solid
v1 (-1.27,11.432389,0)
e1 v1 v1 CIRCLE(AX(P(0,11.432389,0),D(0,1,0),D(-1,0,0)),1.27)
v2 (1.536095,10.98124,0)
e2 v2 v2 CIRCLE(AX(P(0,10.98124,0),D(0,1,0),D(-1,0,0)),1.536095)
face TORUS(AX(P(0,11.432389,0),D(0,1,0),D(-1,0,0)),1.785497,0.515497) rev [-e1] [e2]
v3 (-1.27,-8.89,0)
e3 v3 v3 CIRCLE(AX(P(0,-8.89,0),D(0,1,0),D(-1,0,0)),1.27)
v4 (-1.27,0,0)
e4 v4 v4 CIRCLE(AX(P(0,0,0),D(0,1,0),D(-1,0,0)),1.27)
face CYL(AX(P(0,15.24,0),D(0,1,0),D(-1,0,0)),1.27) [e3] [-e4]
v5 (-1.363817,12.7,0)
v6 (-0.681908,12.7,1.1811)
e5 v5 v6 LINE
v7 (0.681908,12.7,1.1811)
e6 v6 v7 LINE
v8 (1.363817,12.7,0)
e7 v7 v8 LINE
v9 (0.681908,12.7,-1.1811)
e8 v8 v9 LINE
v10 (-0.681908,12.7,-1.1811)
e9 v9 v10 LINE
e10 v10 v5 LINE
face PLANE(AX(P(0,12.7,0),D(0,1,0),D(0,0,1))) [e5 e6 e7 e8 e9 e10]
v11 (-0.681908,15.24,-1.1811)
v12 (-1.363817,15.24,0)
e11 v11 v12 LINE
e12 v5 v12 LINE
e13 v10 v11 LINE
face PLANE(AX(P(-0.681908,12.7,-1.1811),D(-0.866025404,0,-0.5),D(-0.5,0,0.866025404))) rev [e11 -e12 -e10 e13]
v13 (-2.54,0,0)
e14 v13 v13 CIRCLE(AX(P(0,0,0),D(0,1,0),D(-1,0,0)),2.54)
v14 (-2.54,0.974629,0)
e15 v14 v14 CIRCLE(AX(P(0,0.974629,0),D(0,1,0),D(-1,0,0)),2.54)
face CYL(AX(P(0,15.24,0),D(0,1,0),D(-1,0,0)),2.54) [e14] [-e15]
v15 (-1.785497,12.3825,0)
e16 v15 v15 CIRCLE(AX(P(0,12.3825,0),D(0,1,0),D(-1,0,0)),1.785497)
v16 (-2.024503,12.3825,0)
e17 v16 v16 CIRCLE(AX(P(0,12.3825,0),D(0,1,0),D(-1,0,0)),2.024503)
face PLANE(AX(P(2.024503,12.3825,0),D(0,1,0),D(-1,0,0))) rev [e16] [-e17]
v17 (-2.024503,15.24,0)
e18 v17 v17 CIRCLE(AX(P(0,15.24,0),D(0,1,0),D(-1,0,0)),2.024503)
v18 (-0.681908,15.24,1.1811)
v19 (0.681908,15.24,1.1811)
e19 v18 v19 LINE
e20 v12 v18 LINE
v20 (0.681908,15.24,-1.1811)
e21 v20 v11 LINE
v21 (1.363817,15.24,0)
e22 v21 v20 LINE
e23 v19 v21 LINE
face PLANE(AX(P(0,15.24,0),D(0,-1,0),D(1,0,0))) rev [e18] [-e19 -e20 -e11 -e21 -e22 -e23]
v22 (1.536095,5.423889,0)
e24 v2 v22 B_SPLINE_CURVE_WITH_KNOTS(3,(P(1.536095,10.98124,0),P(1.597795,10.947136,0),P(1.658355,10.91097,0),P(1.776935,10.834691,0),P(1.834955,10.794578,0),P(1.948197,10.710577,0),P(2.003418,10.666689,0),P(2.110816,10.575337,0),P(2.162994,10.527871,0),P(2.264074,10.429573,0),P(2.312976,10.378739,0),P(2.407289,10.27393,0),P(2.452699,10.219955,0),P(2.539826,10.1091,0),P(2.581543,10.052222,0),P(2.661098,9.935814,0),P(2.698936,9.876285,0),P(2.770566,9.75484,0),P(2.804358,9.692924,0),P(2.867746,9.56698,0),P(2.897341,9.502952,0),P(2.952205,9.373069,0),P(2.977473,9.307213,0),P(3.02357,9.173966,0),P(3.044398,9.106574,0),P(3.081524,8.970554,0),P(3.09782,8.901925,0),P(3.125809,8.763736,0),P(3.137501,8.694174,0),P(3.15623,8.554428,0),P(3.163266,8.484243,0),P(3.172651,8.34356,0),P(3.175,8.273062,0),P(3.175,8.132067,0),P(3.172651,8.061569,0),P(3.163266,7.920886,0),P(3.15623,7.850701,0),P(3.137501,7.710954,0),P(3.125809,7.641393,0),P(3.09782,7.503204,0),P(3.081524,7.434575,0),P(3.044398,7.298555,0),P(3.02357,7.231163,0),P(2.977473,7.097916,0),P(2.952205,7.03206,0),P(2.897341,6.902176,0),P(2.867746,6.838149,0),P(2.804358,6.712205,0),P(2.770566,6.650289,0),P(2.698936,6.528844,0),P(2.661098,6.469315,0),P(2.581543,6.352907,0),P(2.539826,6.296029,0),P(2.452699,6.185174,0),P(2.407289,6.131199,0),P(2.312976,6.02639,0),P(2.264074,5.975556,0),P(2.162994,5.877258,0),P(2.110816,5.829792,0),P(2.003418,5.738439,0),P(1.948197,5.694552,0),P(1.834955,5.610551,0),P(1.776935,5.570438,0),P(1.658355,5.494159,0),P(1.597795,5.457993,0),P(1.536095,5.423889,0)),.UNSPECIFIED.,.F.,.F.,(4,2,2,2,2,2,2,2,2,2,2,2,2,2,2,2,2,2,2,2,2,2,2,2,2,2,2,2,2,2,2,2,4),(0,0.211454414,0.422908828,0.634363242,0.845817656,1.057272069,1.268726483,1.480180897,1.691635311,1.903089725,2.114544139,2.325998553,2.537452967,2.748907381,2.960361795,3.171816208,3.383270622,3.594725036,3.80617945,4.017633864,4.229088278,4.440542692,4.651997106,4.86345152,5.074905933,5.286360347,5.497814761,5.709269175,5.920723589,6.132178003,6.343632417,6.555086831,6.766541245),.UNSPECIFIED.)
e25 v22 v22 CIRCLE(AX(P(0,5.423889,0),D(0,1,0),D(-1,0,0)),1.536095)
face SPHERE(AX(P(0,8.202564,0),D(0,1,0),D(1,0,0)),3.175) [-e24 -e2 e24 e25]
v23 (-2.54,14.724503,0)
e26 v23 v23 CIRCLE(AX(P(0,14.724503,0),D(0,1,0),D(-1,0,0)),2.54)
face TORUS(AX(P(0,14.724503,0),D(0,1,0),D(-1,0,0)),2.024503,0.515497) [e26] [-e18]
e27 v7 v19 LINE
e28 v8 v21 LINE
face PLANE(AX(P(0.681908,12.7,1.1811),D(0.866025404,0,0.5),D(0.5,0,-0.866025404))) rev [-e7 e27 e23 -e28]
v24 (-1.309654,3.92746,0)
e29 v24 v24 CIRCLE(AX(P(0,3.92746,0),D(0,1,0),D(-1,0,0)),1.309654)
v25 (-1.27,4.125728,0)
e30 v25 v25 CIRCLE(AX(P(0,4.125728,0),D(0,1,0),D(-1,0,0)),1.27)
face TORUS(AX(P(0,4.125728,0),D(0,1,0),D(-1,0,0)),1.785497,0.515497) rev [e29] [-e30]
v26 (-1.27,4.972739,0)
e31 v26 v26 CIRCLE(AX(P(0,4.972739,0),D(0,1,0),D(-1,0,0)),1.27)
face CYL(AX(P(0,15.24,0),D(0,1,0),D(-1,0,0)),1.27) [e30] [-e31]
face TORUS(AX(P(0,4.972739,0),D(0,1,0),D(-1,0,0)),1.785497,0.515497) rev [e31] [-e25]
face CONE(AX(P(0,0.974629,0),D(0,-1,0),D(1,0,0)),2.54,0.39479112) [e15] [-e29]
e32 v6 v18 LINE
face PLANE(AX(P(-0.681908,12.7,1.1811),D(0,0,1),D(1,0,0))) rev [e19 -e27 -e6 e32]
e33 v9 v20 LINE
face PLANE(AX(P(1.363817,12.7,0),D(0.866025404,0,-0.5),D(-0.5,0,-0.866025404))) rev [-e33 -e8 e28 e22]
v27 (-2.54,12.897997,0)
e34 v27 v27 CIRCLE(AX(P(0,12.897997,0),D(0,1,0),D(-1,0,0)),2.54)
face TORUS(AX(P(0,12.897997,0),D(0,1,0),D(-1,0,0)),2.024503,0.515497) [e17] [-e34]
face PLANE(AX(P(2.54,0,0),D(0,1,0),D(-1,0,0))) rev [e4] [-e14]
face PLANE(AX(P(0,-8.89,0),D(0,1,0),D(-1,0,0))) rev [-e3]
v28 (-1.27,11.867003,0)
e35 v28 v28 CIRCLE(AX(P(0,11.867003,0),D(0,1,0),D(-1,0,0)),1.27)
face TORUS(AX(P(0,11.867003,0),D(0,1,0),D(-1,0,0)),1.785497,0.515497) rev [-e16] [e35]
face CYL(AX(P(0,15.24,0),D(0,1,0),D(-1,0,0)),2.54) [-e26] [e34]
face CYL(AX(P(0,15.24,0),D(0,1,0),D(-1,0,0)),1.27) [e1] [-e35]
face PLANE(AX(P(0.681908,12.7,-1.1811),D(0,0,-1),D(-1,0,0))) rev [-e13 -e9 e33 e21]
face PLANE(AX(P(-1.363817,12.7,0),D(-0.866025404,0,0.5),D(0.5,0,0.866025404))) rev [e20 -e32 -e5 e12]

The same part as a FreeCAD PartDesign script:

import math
import FreeCAD as App
import Part
import Sketcher
Q = App.Units.Quantity

doc = App.newDocument("Part")
body = doc.addObject("PartDesign::Body", "Body")

sketch1 = body.newObject("Sketcher::SketchObject", "Sketch")
sketch1.AttachmentSupport = (doc.getObject("XY_Plane"), [""])
sketch1.MapMode = "FlatFace"
sketch1.addGeometry(Part.LineSegment(App.Vector(0, 15.24, 0), App.Vector(0, -8.89, 0)), False)
sketch1.addGeometry(Part.LineSegment(App.Vector(0, -8.89, 0), App.Vector(1.27, -8.89, 0)), False)
sketch1.addGeometry(Part.LineSegment(App.Vector(1.27, -8.89, 0), App.Vector(1.27, 0, 0)), False)
sketch1.addGeometry(Part.LineSegment(App.Vector(1.27, 0, 0), App.Vector(2.54, 0, 0)), False)
sketch1.addGeometry(Part.LineSegment(App.Vector(2.54, 0, 0), App.Vector(2.54, 0.97, 0)), False)
sketch1.addGeometry(Part.LineSegment(App.Vector(2.54, 0.97, 0), App.Vector(1.31, 3.93, 0)), False)
sketch1.addGeometry(Part.ArcOfCircle(Part.Circle(App.Vector(1.79, 4.13, 0), App.Vector(0, 0, 1), 0.52), math.radians(180), math.radians(203)), False)
sketch1.addGeometry(Part.LineSegment(App.Vector(1.27, 4.13, 0), App.Vector(1.27, 4.97, 0)), False)
sketch1.addGeometry(Part.ArcOfCircle(Part.Circle(App.Vector(1.79, 4.97, 0), App.Vector(0, 0, 1), 0.52), math.radians(119), math.radians(180)), False)
sketch1.addGeometry(Part.ArcOfCircle(Part.Circle(App.Vector(0, 8.2, 0), App.Vector(0, 0, 1), 3.17), math.radians(-61), math.radians(61)), False)
sketch1.addGeometry(Part.ArcOfCircle(Part.Circle(App.Vector(1.79, 11.43, 0), App.Vector(0, 0, 1), 0.52), math.radians(-180), math.radians(-119)), False)
sketch1.addGeometry(Part.LineSegment(App.Vector(1.27, 11.43, 0), App.Vector(1.27, 11.87, 0)), False)
sketch1.addGeometry(Part.ArcOfCircle(Part.Circle(App.Vector(1.79, 11.87, 0), App.Vector(0, 0, 1), 0.52), math.radians(90), math.radians(180)), False)
sketch1.addGeometry(Part.LineSegment(App.Vector(1.79, 12.38, 0), App.Vector(2.02, 12.38, 0)), False)
sketch1.addGeometry(Part.ArcOfCircle(Part.Circle(App.Vector(2.02, 12.9, 0), App.Vector(0, 0, 1), 0.52), math.radians(-90), math.radians(0)), False)
sketch1.addGeometry(Part.LineSegment(App.Vector(2.54, 12.9, 0), App.Vector(2.54, 14.72, 0)), False)
sketch1.addGeometry(Part.ArcOfCircle(Part.Circle(App.Vector(2.02, 14.72, 0), App.Vector(0, 0, 1), 0.52), math.radians(0), math.radians(90)), False)
sketch1.addGeometry(Part.LineSegment(App.Vector(2.02, 15.24, 0), App.Vector(0, 15.24, 0)), False)
sketch1.addConstraint(Sketcher.Constraint("Coincident", 0, 2, 1, 1))
sketch1.addConstraint(Sketcher.Constraint("Coincident", 1, 2, 2, 1))
sketch1.addConstraint(Sketcher.Constraint("Coincident", 2, 2, 3, 1))
sketch1.addConstraint(Sketcher.Constraint("Coincident", 3, 2, 4, 1))
sketch1.addConstraint(Sketcher.Constraint("Coincident", 4, 2, 5, 1))
sketch1.addConstraint(Sketcher.Constraint("Tangent", 5, 2, 6, 2))
sketch1.addConstraint(Sketcher.Constraint("Tangent", 6, 1, 7, 1))
sketch1.addConstraint(Sketcher.Constraint("Tangent", 7, 2, 8, 2))
sketch1.addConstraint(Sketcher.Constraint("Tangent", 8, 1, 9, 1))
sketch1.addConstraint(Sketcher.Constraint("Tangent", 9, 2, 10, 2))
sketch1.addConstraint(Sketcher.Constraint("Tangent", 10, 1, 11, 1))
sketch1.addConstraint(Sketcher.Constraint("Tangent", 11, 2, 12, 2))
sketch1.addConstraint(Sketcher.Constraint("Tangent", 12, 1, 13, 1))
sketch1.addConstraint(Sketcher.Constraint("Tangent", 13, 2, 14, 1))
sketch1.addConstraint(Sketcher.Constraint("Tangent", 14, 2, 15, 1))
sketch1.addConstraint(Sketcher.Constraint("Tangent", 15, 2, 16, 1))
sketch1.addConstraint(Sketcher.Constraint("Tangent", 16, 2, 17, 1))
sketch1.addConstraint(Sketcher.Constraint("Coincident", 17, 2, 0, 1))
sketch1.addConstraint(Sketcher.Constraint("Vertical", 0))
sketch1.addConstraint(Sketcher.Constraint("Horizontal", 1))
sketch1.addConstraint(Sketcher.Constraint("Vertical", 2))
sketch1.addConstraint(Sketcher.Constraint("Horizontal", 3))
sketch1.addConstraint(Sketcher.Constraint("Vertical", 4))
sketch1.addConstraint(Sketcher.Constraint("Vertical", 7))
sketch1.addConstraint(Sketcher.Constraint("Vertical", 11))
sketch1.addConstraint(Sketcher.Constraint("Horizontal", 13))
sketch1.addConstraint(Sketcher.Constraint("Vertical", 15))
sketch1.addConstraint(Sketcher.Constraint("Horizontal", 17))
sketch1.addConstraint(Sketcher.Constraint("Equal", 6, 8))
sketch1.addConstraint(Sketcher.Constraint("Equal", 8, 10))
sketch1.addConstraint(Sketcher.Constraint("Equal", 10, 12))
sketch1.addConstraint(Sketcher.Constraint("Equal", 12, 14))
sketch1.addConstraint(Sketcher.Constraint("Equal", 14, 16))
sketch1.addConstraint(Sketcher.Constraint("PointOnObject", 9, 3, -2))
sketch1.addConstraint(Sketcher.Constraint("PointOnObject", 0, 2, -2))
sketch1.addConstraint(Sketcher.Constraint("PointOnObject", 2, 2, -1))
sketch1.addConstraint(Sketcher.Constraint("Vertical", 8, 3, 10, 3))
sketch1.addConstraint(Sketcher.Constraint("Vertical", 2, 2, 6, 1))
sketch1.addConstraint(Sketcher.Constraint("Vertical", 4, 2, 14, 2))
sketch1.addConstraint(Sketcher.Constraint("Equal", 1, 3))
sketch1.addConstraint(Sketcher.Constraint("Radius", 9, Q("0.125 in")))
sketch1.addConstraint(Sketcher.Constraint("DistanceX", 1, 1, 1, 2, Q("0.05 in")))
sketch1.addConstraint(Sketcher.Constraint("DistanceY", 0, 2, 0, 1, Q("0.95 in")))
sketch1.addConstraint(Sketcher.Constraint("DistanceY", 2, 1, 2, 2, Q("0.35 in")))
sketch1.addConstraint(Sketcher.Constraint("DistanceY", -1, 1, 12, 1, Q("0.4875 in")))
sketch1.addConstraint(Sketcher.Constraint("Radius", 6, Q("0.515497 mm")))
sketch1.addConstraint(Sketcher.Constraint("Distance", 5, Q("3.198901 mm")))
sketch1.addConstraint(Sketcher.Constraint("DistanceY", 4, 1, 4, 2, Q("0.974629 mm")))
sketch1.addConstraint(Sketcher.Constraint("DistanceY", 7, 1, 7, 2, Q("0.847011 mm")))
revolution = body.newObject("PartDesign::Revolution", "Revolution")
revolution.Profile = sketch1
revolution.ReferenceAxis = (sketch1, ["V_Axis"])
revolution.Angle = 360

sketch2 = body.newObject("Sketcher::SketchObject", "Sketch001")
sketch2.AttachmentSupport = (doc.getObject("XZ_Plane"), [""])
sketch2.MapMode = "FlatFace"
sketch2.AttachmentOffset = App.Placement(App.Vector(0, 0, -0.6 * 25.4), App.Rotation())
sketch2.addGeometry(Part.LineSegment(App.Vector(-1.4, 0, 0), App.Vector(-0.7, 1.2, 0)), False)
sketch2.addGeometry(Part.LineSegment(App.Vector(-0.7, 1.2, 0), App.Vector(0.7, 1.2, 0)), False)
sketch2.addGeometry(Part.LineSegment(App.Vector(0.7, 1.2, 0), App.Vector(1.4, 0, 0)), False)
sketch2.addGeometry(Part.LineSegment(App.Vector(1.4, 0, 0), App.Vector(0.7, -1.2, 0)), False)
sketch2.addGeometry(Part.LineSegment(App.Vector(0.7, -1.2, 0), App.Vector(-0.7, -1.2, 0)), False)
sketch2.addGeometry(Part.LineSegment(App.Vector(-0.7, -1.2, 0), App.Vector(-1.4, 0, 0)), False)
sketch2.addConstraint(Sketcher.Constraint("Coincident", 0, 2, 1, 1))
sketch2.addConstraint(Sketcher.Constraint("Coincident", 1, 2, 2, 1))
sketch2.addConstraint(Sketcher.Constraint("Coincident", 2, 2, 3, 1))
sketch2.addConstraint(Sketcher.Constraint("Coincident", 3, 2, 4, 1))
sketch2.addConstraint(Sketcher.Constraint("Coincident", 4, 2, 5, 1))
sketch2.addConstraint(Sketcher.Constraint("Coincident", 5, 2, 0, 1))
sketch2.addConstraint(Sketcher.Constraint("Horizontal", 1))
sketch2.addConstraint(Sketcher.Constraint("Horizontal", 4))
sketch2.addConstraint(Sketcher.Constraint("Symmetric", 0, 2, 3, 2, -1, 1))
sketch2.addConstraint(Sketcher.Constraint("Symmetric", 2, 2, 5, 2, -1, 1))
sketch2.addConstraint(Sketcher.Constraint("PointOnObject", 2, 2, -1))
sketch2.addConstraint(Sketcher.Constraint("Parallel", 2, 5))
sketch2.addConstraint(Sketcher.Constraint("Vertical", 1, 2, 3, 2))
sketch2.addConstraint(Sketcher.Constraint("Angle", 0, Q("60 deg")))
sketch2.addConstraint(Sketcher.Constraint("DistanceY", 3, 2, 1, 2, Q("0.093 in")))
sketch2.addConstraint(Sketcher.Constraint("DistanceX", 1, 1, 1, 2, Q("1.363817 mm")))
pocket1 = body.newObject("PartDesign::Pocket", "Pocket")
pocket1.Profile = sketch2
pocket1.Length = Q("0.1 in")
pocket1.Reversed = True

doc.recompute()
